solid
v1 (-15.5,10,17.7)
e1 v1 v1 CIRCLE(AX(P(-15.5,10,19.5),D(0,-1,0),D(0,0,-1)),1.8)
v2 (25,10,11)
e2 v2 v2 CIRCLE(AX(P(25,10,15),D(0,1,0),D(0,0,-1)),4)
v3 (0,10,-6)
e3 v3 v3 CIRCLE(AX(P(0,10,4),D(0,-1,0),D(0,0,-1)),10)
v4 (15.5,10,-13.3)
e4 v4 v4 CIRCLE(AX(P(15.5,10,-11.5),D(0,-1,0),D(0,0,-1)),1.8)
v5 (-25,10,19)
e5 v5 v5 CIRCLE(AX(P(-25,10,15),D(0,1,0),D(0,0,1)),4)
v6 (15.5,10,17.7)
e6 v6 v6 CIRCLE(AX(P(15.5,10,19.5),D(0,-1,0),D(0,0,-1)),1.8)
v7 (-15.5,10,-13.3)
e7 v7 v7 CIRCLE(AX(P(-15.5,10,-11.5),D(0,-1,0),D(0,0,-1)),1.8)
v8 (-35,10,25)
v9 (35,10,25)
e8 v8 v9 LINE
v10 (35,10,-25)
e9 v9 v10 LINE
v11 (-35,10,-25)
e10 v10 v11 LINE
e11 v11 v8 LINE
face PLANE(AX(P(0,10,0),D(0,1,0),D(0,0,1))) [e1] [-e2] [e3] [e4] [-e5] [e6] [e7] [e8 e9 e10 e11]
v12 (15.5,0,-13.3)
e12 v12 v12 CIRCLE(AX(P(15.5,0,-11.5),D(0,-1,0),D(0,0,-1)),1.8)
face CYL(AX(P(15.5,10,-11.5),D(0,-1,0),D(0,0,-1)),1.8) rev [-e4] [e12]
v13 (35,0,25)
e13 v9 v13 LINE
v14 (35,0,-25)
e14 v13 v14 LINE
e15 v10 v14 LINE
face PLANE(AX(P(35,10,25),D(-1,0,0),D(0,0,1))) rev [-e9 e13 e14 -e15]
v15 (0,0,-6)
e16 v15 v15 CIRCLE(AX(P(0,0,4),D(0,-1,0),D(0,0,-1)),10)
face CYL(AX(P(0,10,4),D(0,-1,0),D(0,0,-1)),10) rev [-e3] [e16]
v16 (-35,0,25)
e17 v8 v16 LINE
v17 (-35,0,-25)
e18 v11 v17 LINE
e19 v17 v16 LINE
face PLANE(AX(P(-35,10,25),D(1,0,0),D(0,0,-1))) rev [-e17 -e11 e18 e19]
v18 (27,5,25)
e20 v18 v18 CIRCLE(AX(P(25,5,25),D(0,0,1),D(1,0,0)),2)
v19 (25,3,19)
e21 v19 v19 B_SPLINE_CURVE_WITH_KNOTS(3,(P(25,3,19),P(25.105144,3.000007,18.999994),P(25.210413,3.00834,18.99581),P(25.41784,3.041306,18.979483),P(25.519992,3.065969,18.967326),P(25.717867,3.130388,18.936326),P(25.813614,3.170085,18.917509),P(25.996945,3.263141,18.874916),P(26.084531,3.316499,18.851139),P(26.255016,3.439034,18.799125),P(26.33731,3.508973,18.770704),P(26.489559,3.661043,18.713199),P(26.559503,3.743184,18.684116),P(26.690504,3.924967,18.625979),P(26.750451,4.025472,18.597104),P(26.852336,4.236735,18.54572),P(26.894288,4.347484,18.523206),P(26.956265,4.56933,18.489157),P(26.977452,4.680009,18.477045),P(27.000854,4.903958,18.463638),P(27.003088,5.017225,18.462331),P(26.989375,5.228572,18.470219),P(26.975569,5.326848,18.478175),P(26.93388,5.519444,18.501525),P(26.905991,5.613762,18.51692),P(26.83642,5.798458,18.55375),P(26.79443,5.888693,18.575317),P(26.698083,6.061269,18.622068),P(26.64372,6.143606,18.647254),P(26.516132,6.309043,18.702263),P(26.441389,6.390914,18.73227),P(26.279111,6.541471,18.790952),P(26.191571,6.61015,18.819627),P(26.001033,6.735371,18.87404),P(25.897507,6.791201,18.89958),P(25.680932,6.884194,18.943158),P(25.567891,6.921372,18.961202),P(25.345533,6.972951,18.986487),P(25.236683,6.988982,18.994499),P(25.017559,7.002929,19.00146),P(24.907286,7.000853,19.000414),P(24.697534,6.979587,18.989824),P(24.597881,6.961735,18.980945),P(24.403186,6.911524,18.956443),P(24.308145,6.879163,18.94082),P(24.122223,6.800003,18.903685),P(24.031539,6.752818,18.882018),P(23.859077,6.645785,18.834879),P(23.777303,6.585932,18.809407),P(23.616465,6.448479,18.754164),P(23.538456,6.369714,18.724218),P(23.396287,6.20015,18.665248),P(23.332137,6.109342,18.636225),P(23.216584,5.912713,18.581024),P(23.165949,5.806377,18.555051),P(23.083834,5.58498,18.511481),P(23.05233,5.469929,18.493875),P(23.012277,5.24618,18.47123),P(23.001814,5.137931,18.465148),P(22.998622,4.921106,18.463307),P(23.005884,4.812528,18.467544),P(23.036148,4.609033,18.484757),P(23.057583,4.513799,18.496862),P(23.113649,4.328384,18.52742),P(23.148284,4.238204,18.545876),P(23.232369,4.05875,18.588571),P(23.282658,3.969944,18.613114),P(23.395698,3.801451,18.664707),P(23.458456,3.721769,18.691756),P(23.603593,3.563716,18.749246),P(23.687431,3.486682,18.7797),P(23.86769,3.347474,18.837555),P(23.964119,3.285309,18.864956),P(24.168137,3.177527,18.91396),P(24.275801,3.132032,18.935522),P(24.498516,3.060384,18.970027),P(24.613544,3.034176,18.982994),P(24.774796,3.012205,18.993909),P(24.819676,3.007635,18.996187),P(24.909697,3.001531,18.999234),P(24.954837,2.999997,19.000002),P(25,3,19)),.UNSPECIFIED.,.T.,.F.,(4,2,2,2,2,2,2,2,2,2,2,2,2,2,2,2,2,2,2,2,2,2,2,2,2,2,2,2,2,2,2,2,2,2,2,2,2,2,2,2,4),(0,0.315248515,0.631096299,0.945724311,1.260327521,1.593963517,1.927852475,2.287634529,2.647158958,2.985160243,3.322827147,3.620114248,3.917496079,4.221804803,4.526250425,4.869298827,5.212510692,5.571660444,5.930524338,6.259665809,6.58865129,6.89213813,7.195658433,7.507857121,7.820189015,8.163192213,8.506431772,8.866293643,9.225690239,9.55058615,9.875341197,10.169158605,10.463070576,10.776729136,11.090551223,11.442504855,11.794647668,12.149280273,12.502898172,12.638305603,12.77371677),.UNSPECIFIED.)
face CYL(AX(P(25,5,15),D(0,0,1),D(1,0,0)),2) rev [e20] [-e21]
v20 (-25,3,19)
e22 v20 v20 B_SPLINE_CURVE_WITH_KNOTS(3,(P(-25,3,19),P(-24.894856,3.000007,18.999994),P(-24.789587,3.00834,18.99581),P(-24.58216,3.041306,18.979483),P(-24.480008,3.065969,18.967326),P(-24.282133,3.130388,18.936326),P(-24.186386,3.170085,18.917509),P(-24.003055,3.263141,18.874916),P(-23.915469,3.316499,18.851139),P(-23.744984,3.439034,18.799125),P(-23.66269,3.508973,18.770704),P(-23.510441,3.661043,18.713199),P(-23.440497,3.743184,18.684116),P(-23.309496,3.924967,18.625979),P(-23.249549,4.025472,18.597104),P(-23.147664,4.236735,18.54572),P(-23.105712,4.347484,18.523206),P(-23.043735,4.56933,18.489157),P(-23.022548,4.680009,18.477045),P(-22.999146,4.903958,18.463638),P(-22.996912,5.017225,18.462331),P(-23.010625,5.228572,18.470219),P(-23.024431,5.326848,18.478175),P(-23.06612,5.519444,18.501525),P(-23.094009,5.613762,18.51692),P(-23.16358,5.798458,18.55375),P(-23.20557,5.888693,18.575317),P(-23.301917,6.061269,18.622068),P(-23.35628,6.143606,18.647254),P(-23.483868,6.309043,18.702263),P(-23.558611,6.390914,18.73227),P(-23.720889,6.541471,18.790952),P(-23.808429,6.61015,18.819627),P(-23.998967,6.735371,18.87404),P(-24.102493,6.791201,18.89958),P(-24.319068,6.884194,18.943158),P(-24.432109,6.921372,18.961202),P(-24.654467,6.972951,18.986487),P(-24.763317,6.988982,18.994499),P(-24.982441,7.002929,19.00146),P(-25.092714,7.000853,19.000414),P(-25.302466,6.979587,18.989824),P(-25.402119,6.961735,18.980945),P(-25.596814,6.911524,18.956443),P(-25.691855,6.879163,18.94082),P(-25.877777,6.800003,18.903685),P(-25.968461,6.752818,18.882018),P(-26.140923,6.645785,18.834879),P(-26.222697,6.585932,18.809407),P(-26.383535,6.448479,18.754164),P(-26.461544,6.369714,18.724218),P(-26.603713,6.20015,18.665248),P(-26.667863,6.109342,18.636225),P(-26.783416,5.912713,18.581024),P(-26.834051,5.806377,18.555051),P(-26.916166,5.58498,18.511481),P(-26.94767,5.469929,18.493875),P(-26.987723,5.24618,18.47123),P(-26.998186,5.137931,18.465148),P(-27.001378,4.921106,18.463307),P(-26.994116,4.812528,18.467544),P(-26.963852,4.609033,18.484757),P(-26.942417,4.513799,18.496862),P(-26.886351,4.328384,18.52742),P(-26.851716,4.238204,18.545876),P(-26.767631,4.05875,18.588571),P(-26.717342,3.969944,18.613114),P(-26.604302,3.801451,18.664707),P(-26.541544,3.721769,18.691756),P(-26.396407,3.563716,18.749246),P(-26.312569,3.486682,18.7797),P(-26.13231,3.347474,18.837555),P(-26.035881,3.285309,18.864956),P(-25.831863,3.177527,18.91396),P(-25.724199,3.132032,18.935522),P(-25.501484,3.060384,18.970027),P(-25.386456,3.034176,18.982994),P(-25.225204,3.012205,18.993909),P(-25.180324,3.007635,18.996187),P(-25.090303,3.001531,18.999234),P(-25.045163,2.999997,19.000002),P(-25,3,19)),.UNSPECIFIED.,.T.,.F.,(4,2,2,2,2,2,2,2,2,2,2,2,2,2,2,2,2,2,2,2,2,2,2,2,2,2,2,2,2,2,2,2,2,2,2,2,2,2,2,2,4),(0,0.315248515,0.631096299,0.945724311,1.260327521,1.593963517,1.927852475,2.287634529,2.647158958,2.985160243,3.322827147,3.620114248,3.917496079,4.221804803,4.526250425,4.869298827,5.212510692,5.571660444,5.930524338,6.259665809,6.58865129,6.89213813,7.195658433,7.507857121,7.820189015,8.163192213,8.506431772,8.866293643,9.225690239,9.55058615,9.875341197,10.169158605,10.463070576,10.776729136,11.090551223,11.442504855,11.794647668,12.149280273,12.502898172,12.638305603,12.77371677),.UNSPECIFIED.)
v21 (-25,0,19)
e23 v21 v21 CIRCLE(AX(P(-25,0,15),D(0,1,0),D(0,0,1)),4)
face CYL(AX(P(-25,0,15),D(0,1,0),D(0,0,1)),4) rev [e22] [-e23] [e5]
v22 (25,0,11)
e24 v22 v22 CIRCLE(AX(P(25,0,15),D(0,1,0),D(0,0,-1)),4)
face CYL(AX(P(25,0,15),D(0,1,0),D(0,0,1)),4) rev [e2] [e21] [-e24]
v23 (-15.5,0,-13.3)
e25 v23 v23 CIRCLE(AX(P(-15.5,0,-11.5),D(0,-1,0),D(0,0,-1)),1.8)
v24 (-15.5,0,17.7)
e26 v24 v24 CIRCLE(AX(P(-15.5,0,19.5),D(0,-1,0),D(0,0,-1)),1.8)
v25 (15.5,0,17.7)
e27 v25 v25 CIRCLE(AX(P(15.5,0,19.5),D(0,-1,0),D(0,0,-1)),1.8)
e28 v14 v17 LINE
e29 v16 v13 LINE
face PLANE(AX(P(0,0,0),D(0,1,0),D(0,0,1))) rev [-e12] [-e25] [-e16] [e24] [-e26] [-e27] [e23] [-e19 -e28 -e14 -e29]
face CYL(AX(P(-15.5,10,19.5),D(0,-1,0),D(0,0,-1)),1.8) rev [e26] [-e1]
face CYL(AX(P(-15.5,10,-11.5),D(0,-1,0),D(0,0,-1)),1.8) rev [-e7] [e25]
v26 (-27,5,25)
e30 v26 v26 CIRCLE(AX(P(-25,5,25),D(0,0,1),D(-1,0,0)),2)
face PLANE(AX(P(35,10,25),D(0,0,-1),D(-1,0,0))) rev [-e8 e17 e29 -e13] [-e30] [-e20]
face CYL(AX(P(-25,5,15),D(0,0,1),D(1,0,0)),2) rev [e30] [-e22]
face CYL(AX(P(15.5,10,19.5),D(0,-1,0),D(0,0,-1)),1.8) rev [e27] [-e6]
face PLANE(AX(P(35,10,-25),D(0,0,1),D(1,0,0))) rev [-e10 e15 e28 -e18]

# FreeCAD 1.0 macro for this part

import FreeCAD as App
import Part
import Sketcher


def add_polygon(sketch, points):
    """Adds a closed chain of lines whose ends are joined by coincident constraints."""
    first, n = sketch.GeometryCount, len(points)
    for a, b in zip(points, points[1:] + points[:1]):
        sketch.addGeometry(Part.LineSegment(App.Vector(*a, 0), App.Vector(*b, 0)), False)
    for i in range(n):
        sketch.addConstraint(Sketcher.Constraint("Coincident", first + i, 2, first + (i + 1) % n, 1))

doc = App.newDocument("Part")
body = doc.addObject("PartDesign::Body", "Body")

sketch1 = body.newObject("Sketcher::SketchObject", "Sketch")
sketch1.AttachmentSupport = (doc.getObject("XZ_Plane"), [""])
sketch1.MapMode = "FlatFace"
add_polygon(sketch1, [(-35, -25), (-35, 25), (35, 25), (35, -25)])
sketch1.addConstraint([
    Sketcher.Constraint("Vertical", 0),
    Sketcher.Constraint("Horizontal", 1),
    Sketcher.Constraint("Vertical", 2),
    Sketcher.Constraint("Horizontal", 3),
    Sketcher.Constraint("Symmetric", 0, 2, 2, 2, -1, 1),
    Sketcher.Constraint("DistanceX", 1, 1, 1, 2, 70.0),
    Sketcher.Constraint("DistanceY", 0, 1, 0, 2, 50.0),
])
pad1 = body.newObject("PartDesign::Pad", "Pad")
pad1.Profile = sketch1
pad1.Length = 10
pad1.Reversed = True

sketch2 = body.newObject("Sketcher::SketchObject", "Sketch001")
sketch2.AttachmentSupport = (doc.getObject("XZ_Plane"), [""])
sketch2.MapMode = "FlatFace"
sketch2.AttachmentOffset = App.Placement(App.Vector(0, 0, -10), App.Rotation())
sketch2.addGeometry([
    Part.Circle(App.Vector(-25, 15, 0), App.Vector(0, 0, 1), 4),
    Part.Circle(App.Vector(25, 15, 0), App.Vector(0, 0, 1), 4),
], False)
sketch2.addConstraint([
    Sketcher.Constraint("Equal", 0, 1),
    Sketcher.Constraint("Symmetric", 0, 3, 1, 3, -2),
    Sketcher.Constraint("Diameter", 0, 8.0),
    Sketcher.Constraint("DistanceX", 0, 3, -1, 1, 25.0),
    Sketcher.Constraint("DistanceY", -1, 1, 0, 3, 15.0),
])
pocket1 = body.newObject("PartDesign::Pocket", "Pocket")
pocket1.Profile = sketch2
pocket1.Type = "ThroughAll"
pocket1.Reversed = True

sketch3 = body.newObject("Sketcher::SketchObject", "Sketch002")
sketch3.AttachmentSupport = (doc.getObject("XZ_Plane"), [""])
sketch3.MapMode = "FlatFace"
sketch3.addGeometry([
    Part.Circle(App.Vector(-15.5, 19.5, 0), App.Vector(0, 0, 1), 1.8),
    Part.Circle(App.Vector(-15.5, -11.5, 0), App.Vector(0, 0, 1), 1.8),
    Part.Circle(App.Vector(15.5, -11.5, 0), App.Vector(0, 0, 1), 1.8),
    Part.Circle(App.Vector(15.5, 19.5, 0), App.Vector(0, 0, 1), 1.8),
], False)
sketch3.addConstraint([
    Sketcher.Constraint("Equal", 0, 1),
    Sketcher.Constraint("Equal", 1, 2),
    Sketcher.Constraint("Equal", 2, 3),
    Sketcher.Constraint("Symmetric", 1, 3, 2, 3, -2),
    Sketcher.Constraint("Symmetric", 0, 3, 3, 3, -2),
    Sketcher.Constraint("Vertical", 0, 3, 1, 3),
    Sketcher.Constraint("Diameter", 0, 3.6),
    Sketcher.Constraint("DistanceY", 1, 3, 0, 3, 31.0),
    Sketcher.Constraint("DistanceX", 1, 3, 2, 3, 31.0),
    Sketcher.Constraint("DistanceY", -1, 1, 0, 3, 19.5),
])
pocket2 = body.newObject("PartDesign::Pocket", "Pocket001")
pocket2.Profile = sketch3
pocket2.Type = "ThroughAll"

sketch4 = body.newObject("Sketcher::SketchObject", "Sketch003")
sketch4.AttachmentSupport = (doc.getObject("XZ_Plane"), [""])
sketch4.MapMode = "FlatFace"
sketch4.addGeometry(Part.Circle(App.Vector(0, 4, 0), App.Vector(0, 0, 1), 10), False)
sketch4.addConstraint([
    Sketcher.Constraint("PointOnObject", 0, 3, -2),
    Sketcher.Constraint("Diameter", 0, 20.0),
    Sketcher.Constraint("DistanceY", -1, 1, 0, 3, 4.0),
])
pocket3 = body.newObject("PartDesign::Pocket", "Pocket002")
pocket3.Profile = sketch4
pocket3.Type = "ThroughAll"

sketch5 = body.newObject("Sketcher::SketchObject", "Sketch004")
sketch5.AttachmentSupport = (doc.getObject("XY_Plane"), [""])
sketch5.MapMode = "FlatFace"
sketch5.AttachmentOffset = App.Placement(App.Vector(0, 0, 25), App.Rotation())
sketch5.addGeometry([
    Part.Circle(App.Vector(25, 5, 0), App.Vector(0, 0, 1), 2),
    Part.Circle(App.Vector(-25, 5, 0), App.Vector(0, 0, 1), 2),
], False)
sketch5.addConstraint([
    Sketcher.Constraint("Equal", 0, 1),
    Sketcher.Constraint("Symmetric", 0, 3, 1, 3, -2),
    Sketcher.Constraint("Diameter", 0, 4.0),
    Sketcher.Constraint("DistanceX", -1, 1, 0, 3, 25.0),
    Sketcher.Constraint("DistanceY", -1, 1, 0, 3, 5.0),
])
pocket4 = body.newObject("PartDesign::Pocket", "Pocket003")
pocket4.Profile = sketch5
pocket4.Length = 10

doc.recompute()
